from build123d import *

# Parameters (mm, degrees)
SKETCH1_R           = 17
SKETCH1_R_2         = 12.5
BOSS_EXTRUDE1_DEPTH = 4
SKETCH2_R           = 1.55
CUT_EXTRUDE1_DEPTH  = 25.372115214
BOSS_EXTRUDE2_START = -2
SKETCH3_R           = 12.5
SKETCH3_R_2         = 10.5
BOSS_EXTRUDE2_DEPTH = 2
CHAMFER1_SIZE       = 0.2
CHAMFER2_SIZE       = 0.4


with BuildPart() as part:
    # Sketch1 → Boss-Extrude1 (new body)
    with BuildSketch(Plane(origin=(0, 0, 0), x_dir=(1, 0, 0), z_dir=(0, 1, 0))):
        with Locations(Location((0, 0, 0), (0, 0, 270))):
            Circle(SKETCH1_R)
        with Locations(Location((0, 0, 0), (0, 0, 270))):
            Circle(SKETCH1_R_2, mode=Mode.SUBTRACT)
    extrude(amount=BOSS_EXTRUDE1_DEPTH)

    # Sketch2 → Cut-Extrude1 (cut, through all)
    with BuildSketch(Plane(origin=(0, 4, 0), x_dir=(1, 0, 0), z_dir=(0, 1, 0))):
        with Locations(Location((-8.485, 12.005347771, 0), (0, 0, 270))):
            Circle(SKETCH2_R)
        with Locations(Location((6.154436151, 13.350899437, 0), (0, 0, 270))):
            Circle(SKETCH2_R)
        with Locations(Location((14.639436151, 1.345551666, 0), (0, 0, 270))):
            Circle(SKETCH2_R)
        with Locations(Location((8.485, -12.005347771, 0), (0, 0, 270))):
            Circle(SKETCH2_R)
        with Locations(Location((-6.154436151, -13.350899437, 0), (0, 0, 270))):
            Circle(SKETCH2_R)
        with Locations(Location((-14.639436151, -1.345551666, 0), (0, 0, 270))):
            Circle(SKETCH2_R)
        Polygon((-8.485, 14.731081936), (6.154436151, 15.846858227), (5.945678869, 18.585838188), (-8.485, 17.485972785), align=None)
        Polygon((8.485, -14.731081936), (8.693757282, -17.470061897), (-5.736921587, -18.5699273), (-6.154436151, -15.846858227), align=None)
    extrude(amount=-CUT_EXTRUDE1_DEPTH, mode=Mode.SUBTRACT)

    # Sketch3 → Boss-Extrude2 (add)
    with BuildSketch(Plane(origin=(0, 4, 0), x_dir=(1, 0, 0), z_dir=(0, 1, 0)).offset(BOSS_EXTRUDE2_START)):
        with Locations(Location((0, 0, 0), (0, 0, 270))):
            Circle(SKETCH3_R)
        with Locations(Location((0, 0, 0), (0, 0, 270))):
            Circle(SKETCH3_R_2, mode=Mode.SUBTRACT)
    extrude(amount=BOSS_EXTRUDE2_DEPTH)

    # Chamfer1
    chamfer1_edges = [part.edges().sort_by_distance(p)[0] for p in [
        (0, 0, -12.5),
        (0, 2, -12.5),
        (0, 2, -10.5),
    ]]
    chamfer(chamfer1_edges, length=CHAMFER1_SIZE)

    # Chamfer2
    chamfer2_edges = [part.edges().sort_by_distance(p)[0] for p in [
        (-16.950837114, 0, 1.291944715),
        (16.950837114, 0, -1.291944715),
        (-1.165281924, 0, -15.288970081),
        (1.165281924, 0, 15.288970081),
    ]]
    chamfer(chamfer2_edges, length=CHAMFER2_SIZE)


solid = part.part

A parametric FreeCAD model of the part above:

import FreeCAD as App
import Part
import Sketcher

V = App.Vector


def edges_at(feature, points):
    """Names of the edges that pass closest to the given points."""
    edges = feature.Shape.Edges
    near = lambda p: min(range(len(edges)), key=lambda i: edges[i].distToShape(Part.Vertex(*p))[0])
    return sorted({f"Edge{near(p) + 1}" for p in points})


def add_polygon(sketch, points):
    """Adds a closed chain of lines whose ends are joined by coincident constraints."""
    first, n = sketch.GeometryCount, len(points)
    for a, b in zip(points, points[1:] + points[:1]):
        sketch.addGeometry(Part.LineSegment(App.Vector(*a, 0), App.Vector(*b, 0)), False)
    for i in range(n):
        sketch.addConstraint(Sketcher.Constraint("Coincident", first + i, 2, first + (i + 1) % n, 1))

doc = App.newDocument("Part")
body = doc.addObject("PartDesign::Body", "Body")

sketch1 = doc.addObject("Sketcher::SketchObject", "Sketch")
body.addObject(sketch1)
sketch1.AttachmentSupport = (doc.XZ_Plane, [""])
sketch1.MapMode = "FlatFace"
sketch1.addGeometry(Part.Circle(V(0, 0, 0), V(0, 0, 1), 17), False)
sketch1.addGeometry(Part.Circle(V(0, 0, 0), V(0, 0, 1), 12), False)
sketch1.addConstraint(Sketcher.Constraint("Coincident", 0, 3, -1, 1))
sketch1.addConstraint(Sketcher.Constraint("Coincident", 1, 3, -1, 1))
sketch1.addConstraint(Sketcher.Constraint("Diameter", 0, 34.0))
sketch1.addConstraint(Sketcher.Constraint("Diameter", 1, 25.0))
pad1 = doc.addObject("PartDesign::Pad", "Pad")
body.addObject(pad1)
pad1.Profile = sketch1
pad1.Length = 4
pad1.Reversed = True

sketch2 = doc.addObject("Sketcher::SketchObject", "Sketch001")
body.addObject(sketch2)
sketch2.AttachmentSupport = (doc.XZ_Plane, [""])
sketch2.MapMode = "FlatFace"
sketch2.AttachmentOffset = App.Placement(V(0, 0, -4), App.Rotation())
sketch2.addGeometry(Part.Circle(V(-8.5, -12, 0), V(0, 0, 1), 1.6), False)
sketch2.addGeometry(Part.Circle(V(6.2, -13.4, 0), V(0, 0, 1), 1.6), False)
sketch2.addGeometry(Part.Circle(V(14.6, -1.3, 0), V(0, 0, 1), 1.6), False)
sketch2.addGeometry(Part.Circle(V(8.5, 12, 0), V(0, 0, 1), 1.6), False)
sketch2.addGeometry(Part.Circle(V(-6.2, 13.4, 0), V(0, 0, 1), 1.6), False)
sketch2.addGeometry(Part.Circle(V(-14.6, 1.3, 0), V(0, 0, 1), 1.6), False)
add_polygon(sketch2, [(-8.5, -14.7), (6.2, -15.8), (5.9, -18.6), (-8.5, -17.5)])
add_polygon(sketch2, [(8.7, 17.5), (8.5, 14.7), (-6.2, 15.8), (-5.7, 18.6)])
sketch2.addConstraint(Sketcher.Constraint("Vertical", 9))
sketch2.addConstraint(Sketcher.Constraint("Equal", 0, 1))
sketch2.addConstraint(Sketcher.Constraint("Equal", 1, 2))
sketch2.addConstraint(Sketcher.Constraint("Equal", 2, 3))
sketch2.addConstraint(Sketcher.Constraint("Equal", 3, 4))
sketch2.addConstraint(Sketcher.Constraint("Equal", 4, 5))
sketch2.addConstraint(Sketcher.Constraint("Symmetric", 0, 3, 3, 3, -1, 1))
sketch2.addConstraint(Sketcher.Constraint("Symmetric", 1, 3, 4, 3, -1, 1))
sketch2.addConstraint(Sketcher.Constraint("Symmetric", 2, 3, 5, 3, -1, 1))
sketch2.addConstraint(Sketcher.Constraint("Symmetric", 9, 2, 10, 2, -1, 1))
sketch2.addConstraint(Sketcher.Constraint("Symmetric", 6, 2, 11, 2, -1, 1))
sketch2.addConstraint(Sketcher.Constraint("Perpendicular", 6, 7))
sketch2.addConstraint(Sketcher.Constraint("Perpendicular", 7, 8))
sketch2.addConstraint(Sketcher.Constraint("Perpendicular", 8, 10))
sketch2.addConstraint(Sketcher.Constraint("Parallel", 11, 13))
sketch2.addConstraint(Sketcher.Constraint("Vertical", 1, 3, 6, 2))
sketch2.addConstraint(Sketcher.Constraint("Vertical", 0, 3, 8, 2))
sketch2.addConstraint(Sketcher.Constraint("Equal", 7, 10))
sketch2.addConstraint(Sketcher.Constraint("Equal", 8, 13))
sketch2.addConstraint(Sketcher.Constraint("Diameter", 0, 3.1))
sketch2.addConstraint(Sketcher.Constraint("DistanceX", 0, 3, 3, 3, 16.97))
sketch2.addConstraint(Sketcher.Constraint("DistanceX", 1, 3, 2, 3, 8.485))
sketch2.addConstraint(Sketcher.Constraint("DistanceY", 9, 1, 9, 2, 2.754891))
sketch2.addConstraint(Sketcher.Constraint("DistanceY", 1, 3, -1, 1, 13.350899))
sketch2.addConstraint(Sketcher.Constraint("DistanceY", 2, 3, 3, 3, 13.350899))
sketch2.addConstraint(Sketcher.Constraint("DistanceY", 2, 3, -1, 1, 1.345552))
sketch2.addConstraint(Sketcher.Constraint("DistanceY", 6, 2, -1, 1, 15.846858))
sketch2.addConstraint(Sketcher.Constraint("DistanceX", -1, 1, 7, 2, 5.945679))
sketch2.addConstraint(Sketcher.Constraint("DistanceY", 7, 2, -1, 1, 18.585838))
pocket1 = doc.addObject("PartDesign::Pocket", "Pocket")
body.addObject(pocket1)
pocket1.Profile = sketch2
pocket1.Type = "ThroughAll"
pocket1.Reversed = True

sketch3 = doc.addObject("Sketcher::SketchObject", "Sketch002")
body.addObject(sketch3)
sketch3.AttachmentSupport = (doc.XZ_Plane, [""])
sketch3.MapMode = "FlatFace"
sketch3.AttachmentOffset = App.Placement(V(0, 0, -2), App.Rotation())
sketch3.addGeometry(Part.Circle(V(0, 0, 0), V(0, 0, 1), 12), False)
sketch3.addGeometry(Part.Circle(V(0, 0, 0), V(0, 0, 1), 10), False)
sketch3.addConstraint(Sketcher.Constraint("Coincident", 0, 3, -1, 1))
sketch3.addConstraint(Sketcher.Constraint("Coincident", 1, 3, -1, 1))
sketch3.addConstraint(Sketcher.Constraint("Diameter", 0, 25.0))
sketch3.addConstraint(Sketcher.Constraint("Diameter", 1, 21.0))
pad2 = doc.addObject("PartDesign::Pad", "Pad001")
body.addObject(pad2)
pad2.Profile = sketch3
pad2.Length = 2
pad2.Reversed = True
doc.recompute()

chamfer = doc.addObject("PartDesign::Chamfer", "Chamfer")
body.addObject(chamfer)
chamfer.Base = (pad2, edges_at(pad2, [(0, 0, -12.5), (0, 2, -12.5), (0, 2, -10.5)]))
chamfer.Size = 0.2
doc.recompute()

chamfer2 = doc.addObject("PartDesign::Chamfer", "Chamfer001")
body.addObject(chamfer2)
chamfer2.Base = (chamfer, edges_at(chamfer, [
    (-16.951, 0, 1.292),
    (16.951, 0, -1.292),
    (-1.165, 0, -15.289),
    (1.165, 0, 15.289),
]))
chamfer2.Size = 0.4

doc.recompute()
